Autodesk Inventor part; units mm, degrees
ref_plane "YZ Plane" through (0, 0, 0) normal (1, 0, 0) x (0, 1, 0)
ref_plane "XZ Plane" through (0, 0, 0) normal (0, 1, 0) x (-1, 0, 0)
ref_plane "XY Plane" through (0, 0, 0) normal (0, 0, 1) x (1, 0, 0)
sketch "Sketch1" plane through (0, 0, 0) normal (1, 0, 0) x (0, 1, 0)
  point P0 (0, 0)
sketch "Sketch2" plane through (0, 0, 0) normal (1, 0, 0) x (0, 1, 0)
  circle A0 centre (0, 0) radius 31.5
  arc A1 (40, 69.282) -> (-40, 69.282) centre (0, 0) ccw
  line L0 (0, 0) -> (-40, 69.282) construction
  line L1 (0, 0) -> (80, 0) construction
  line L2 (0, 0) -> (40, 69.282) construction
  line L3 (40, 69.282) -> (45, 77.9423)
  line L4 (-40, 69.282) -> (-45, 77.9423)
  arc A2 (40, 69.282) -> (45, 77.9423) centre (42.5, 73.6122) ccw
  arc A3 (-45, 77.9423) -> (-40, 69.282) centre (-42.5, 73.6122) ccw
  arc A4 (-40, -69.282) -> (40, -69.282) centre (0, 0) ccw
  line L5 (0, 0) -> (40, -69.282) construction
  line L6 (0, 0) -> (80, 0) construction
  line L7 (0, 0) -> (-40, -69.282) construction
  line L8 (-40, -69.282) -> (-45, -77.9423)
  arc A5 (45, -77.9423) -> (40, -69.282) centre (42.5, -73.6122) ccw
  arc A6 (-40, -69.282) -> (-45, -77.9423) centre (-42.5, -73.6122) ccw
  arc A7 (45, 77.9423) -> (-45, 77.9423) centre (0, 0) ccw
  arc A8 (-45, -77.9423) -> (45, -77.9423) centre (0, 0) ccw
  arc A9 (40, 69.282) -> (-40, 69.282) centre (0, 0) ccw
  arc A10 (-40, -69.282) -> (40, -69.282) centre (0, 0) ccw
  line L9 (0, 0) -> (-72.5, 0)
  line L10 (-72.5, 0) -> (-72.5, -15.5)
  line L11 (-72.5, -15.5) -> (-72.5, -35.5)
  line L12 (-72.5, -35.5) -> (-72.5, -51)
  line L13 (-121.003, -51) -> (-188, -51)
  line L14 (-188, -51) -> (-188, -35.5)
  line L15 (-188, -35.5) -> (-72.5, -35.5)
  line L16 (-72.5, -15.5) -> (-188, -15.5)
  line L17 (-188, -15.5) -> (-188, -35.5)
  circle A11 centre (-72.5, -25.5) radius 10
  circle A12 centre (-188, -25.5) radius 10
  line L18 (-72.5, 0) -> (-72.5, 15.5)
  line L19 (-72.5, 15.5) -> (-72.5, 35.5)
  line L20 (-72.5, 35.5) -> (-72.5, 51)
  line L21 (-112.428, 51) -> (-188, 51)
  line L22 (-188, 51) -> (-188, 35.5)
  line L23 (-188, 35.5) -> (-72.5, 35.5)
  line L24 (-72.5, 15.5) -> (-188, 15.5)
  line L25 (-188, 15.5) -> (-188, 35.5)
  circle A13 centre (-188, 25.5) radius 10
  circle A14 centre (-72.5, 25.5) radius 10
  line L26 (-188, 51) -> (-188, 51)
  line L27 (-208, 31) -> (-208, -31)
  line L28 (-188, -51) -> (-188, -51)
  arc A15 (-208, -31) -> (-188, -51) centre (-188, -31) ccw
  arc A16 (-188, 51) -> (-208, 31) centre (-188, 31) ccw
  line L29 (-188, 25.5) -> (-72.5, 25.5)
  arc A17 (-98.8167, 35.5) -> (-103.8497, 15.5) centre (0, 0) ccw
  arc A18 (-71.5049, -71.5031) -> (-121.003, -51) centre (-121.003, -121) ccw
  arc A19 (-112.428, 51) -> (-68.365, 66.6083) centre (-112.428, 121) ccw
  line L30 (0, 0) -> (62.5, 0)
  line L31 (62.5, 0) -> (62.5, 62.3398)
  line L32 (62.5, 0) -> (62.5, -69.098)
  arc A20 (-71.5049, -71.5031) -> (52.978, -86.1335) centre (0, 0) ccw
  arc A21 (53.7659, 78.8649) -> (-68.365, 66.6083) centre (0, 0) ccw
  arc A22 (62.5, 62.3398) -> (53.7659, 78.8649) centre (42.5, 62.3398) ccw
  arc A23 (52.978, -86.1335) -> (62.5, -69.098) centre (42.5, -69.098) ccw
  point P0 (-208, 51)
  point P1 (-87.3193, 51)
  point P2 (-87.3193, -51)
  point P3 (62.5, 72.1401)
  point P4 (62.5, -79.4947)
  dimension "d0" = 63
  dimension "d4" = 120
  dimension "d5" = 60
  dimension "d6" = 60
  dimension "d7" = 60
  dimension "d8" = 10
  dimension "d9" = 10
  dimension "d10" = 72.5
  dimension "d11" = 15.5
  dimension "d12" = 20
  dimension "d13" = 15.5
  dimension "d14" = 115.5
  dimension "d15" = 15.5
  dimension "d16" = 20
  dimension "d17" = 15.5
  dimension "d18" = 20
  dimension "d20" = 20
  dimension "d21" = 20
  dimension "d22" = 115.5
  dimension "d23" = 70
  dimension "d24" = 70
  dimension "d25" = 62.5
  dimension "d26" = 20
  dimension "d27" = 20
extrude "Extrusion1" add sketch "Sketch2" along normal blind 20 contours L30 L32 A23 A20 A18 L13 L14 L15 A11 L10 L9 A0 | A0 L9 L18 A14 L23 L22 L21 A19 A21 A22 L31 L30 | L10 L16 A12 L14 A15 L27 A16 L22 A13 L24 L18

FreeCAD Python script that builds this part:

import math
import FreeCAD as App
import Part
import Sketcher

doc = App.newDocument("Part")
body = doc.addObject("PartDesign::Body", "Body")

# Sketch on YZ plane
sketch1 = body.newObject("Sketcher::SketchObject", "Sketch")
sketch1.AttachmentSupport = (doc.getObject("YZ_Plane"), [""])
sketch1.MapMode = "FlatFace"
sketch1.addGeometry([
    Part.LineSegment(App.Vector(62.5, -69.1, 0), App.Vector(62.5, 62.3, 0)),  # 0
    Part.ArcOfCircle(Part.Circle(App.Vector(42.5, 62.3, 0), App.Vector(0, 0, 1), 20), math.radians(0), math.radians(56)),  # 1
    Part.ArcOfCircle(Part.Circle(App.Vector(0, 0, 0), App.Vector(0, 0, 1), 95.4), math.radians(56), math.radians(136)),  # 2
    Part.ArcOfCircle(Part.Circle(App.Vector(-112.4, 121, 0), App.Vector(0, 0, 1), 70), math.radians(-90), math.radians(-51)),  # 3
    Part.LineSegment(App.Vector(-112.4, 51, 0), App.Vector(-188, 51, 0)),  # 4
    Part.ArcOfCircle(Part.Circle(App.Vector(-188, 31, 0), App.Vector(0, 0, 1), 20), math.radians(90), math.radians(180)),  # 5
    Part.LineSegment(App.Vector(-208, 31, 0), App.Vector(-208, -31, 0)),  # 6
    Part.ArcOfCircle(Part.Circle(App.Vector(-188, -31, 0), App.Vector(0, 0, 1), 20), math.radians(180), math.radians(270)),  # 7
    Part.LineSegment(App.Vector(-188, -51, 0), App.Vector(-121, -51, 0)),  # 8
    Part.ArcOfCircle(Part.Circle(App.Vector(-121, -121, 0), App.Vector(0, 0, 1), 70), math.radians(45), math.radians(90)),  # 9
    Part.ArcOfCircle(Part.Circle(App.Vector(0, 0, 0), App.Vector(0, 0, 1), 101.1), math.radians(-135), math.radians(-58)),  # 10
    Part.ArcOfCircle(Part.Circle(App.Vector(42.5, -69.1, 0), App.Vector(0, 0, 1), 20), math.radians(-58), math.radians(0)),  # 11
    Part.LineSegment(App.Vector(-72.5, -35.5, 0), App.Vector(-188, -35.5, 0)),  # 12
    Part.ArcOfCircle(Part.Circle(App.Vector(-188, -25.5, 0), App.Vector(0, 0, 1), 10), math.radians(90), math.radians(270)),  # 13
    Part.LineSegment(App.Vector(-188, -15.5, 0), App.Vector(-72.5, -15.5, 0)),  # 14
    Part.ArcOfCircle(Part.Circle(App.Vector(-72.5, -25.5, 0), App.Vector(0, 0, 1), 10), math.radians(-90), math.radians(90)),  # 15
    Part.Circle(App.Vector(0, 0, 0), App.Vector(0, 0, 1), 31.5),  # 16
    Part.ArcOfCircle(Part.Circle(App.Vector(-42.5, -73.6, 0), App.Vector(0, 0, 1), 5), math.radians(60), math.radians(240)),  # 17
    Part.ArcOfCircle(Part.Circle(App.Vector(0, 0, 0), App.Vector(0, 0, 1), 80), math.radians(-120), math.radians(-60)),  # 18
    Part.ArcOfCircle(Part.Circle(App.Vector(42.5, -73.6, 0), App.Vector(0, 0, 1), 5), math.radians(-60), math.radians(120)),  # 19
    Part.ArcOfCircle(Part.Circle(App.Vector(0, 0, 0), App.Vector(0, 0, 1), 90), math.radians(-120), math.radians(-60)),  # 20
    Part.ArcOfCircle(Part.Circle(App.Vector(-42.5, 73.6, 0), App.Vector(0, 0, 1), 5), math.radians(120), math.radians(300)),  # 21
    Part.ArcOfCircle(Part.Circle(App.Vector(0, 0, 0), App.Vector(0, 0, 1), 90), math.radians(60), math.radians(120)),  # 22
    Part.ArcOfCircle(Part.Circle(App.Vector(42.5, 73.6, 0), App.Vector(0, 0, 1), 5), math.radians(-120), math.radians(60)),  # 23
    Part.ArcOfCircle(Part.Circle(App.Vector(0, 0, 0), App.Vector(0, 0, 1), 80), math.radians(60), math.radians(120)),  # 24
    Part.LineSegment(App.Vector(-72.5, 15.5, 0), App.Vector(-188, 15.5, 0)),  # 25
    Part.ArcOfCircle(Part.Circle(App.Vector(-188, 25.5, 0), App.Vector(0, 0, 1), 10), math.radians(90), math.radians(270)),  # 26
    Part.LineSegment(App.Vector(-188, 35.5, 0), App.Vector(-72.5, 35.5, 0)),  # 27
    Part.ArcOfCircle(Part.Circle(App.Vector(-72.5, 25.5, 0), App.Vector(0, 0, 1), 10), math.radians(-90), math.radians(90)),  # 28
], False)
sketch1.addConstraint([
    Sketcher.Constraint("Tangent", 0, 2, 1, 1),
    Sketcher.Constraint("Tangent", 1, 2, 2, 1),
    Sketcher.Constraint("Coincident", 2, 2, 3, 2),
    Sketcher.Constraint("Tangent", 3, 1, 4, 1),
    Sketcher.Constraint("Tangent", 4, 2, 5, 1),
    Sketcher.Constraint("Tangent", 5, 2, 6, 1),
    Sketcher.Constraint("Tangent", 6, 2, 7, 1),
    Sketcher.Constraint("Tangent", 7, 2, 8, 1),
    Sketcher.Constraint("Tangent", 8, 2, 9, 2),
    Sketcher.Constraint("Tangent", 9, 1, 10, 1),
    Sketcher.Constraint("Tangent", 10, 2, 11, 1),
    Sketcher.Constraint("Tangent", 11, 2, 0, 1),
    Sketcher.Constraint("Tangent", 12, 2, 13, 2),
    Sketcher.Constraint("Tangent", 13, 1, 14, 1),
    Sketcher.Constraint("Tangent", 14, 2, 15, 2),
    Sketcher.Constraint("Tangent", 15, 1, 12, 1),
    Sketcher.Constraint("Tangent", 17, 1, 18, 1),
    Sketcher.Constraint("Tangent", 18, 2, 19, 2),
    Sketcher.Constraint("Tangent", 19, 1, 20, 2),
    Sketcher.Constraint("Tangent", 20, 1, 17, 2),
    Sketcher.Constraint("Tangent", 21, 1, 22, 2),
    Sketcher.Constraint("Tangent", 22, 1, 23, 2),
    Sketcher.Constraint("Tangent", 23, 1, 24, 1),
    Sketcher.Constraint("Tangent", 24, 2, 21, 2),
    Sketcher.Constraint("Tangent", 25, 2, 26, 2),
    Sketcher.Constraint("Tangent", 26, 1, 27, 1),
    Sketcher.Constraint("Tangent", 27, 2, 28, 2),
    Sketcher.Constraint("Tangent", 28, 1, 25, 1),
    Sketcher.Constraint("Vertical", 0),
    Sketcher.Constraint("Horizontal", 4),
    Sketcher.Constraint("Vertical", 6),
    Sketcher.Constraint("Horizontal", 8),
    Sketcher.Constraint("Horizontal", 12),
    Sketcher.Constraint("Horizontal", 14),
    Sketcher.Constraint("Horizontal", 25),
    Sketcher.Constraint("Horizontal", 27),
    Sketcher.Constraint("Coincident", 2, 3, -1, 1),
    Sketcher.Constraint("Coincident", 10, 3, -1, 1),
    Sketcher.Constraint("Coincident", 16, 3, -1, 1),
    Sketcher.Constraint("Coincident", 18, 3, -1, 1),
    Sketcher.Constraint("Coincident", 20, 3, -1, 1),
    Sketcher.Constraint("Coincident", 22, 3, -1, 1),
    Sketcher.Constraint("Coincident", 24, 3, -1, 1),
    Sketcher.Constraint("Equal", 1, 5),
    Sketcher.Constraint("Equal", 5, 7),
    Sketcher.Constraint("Equal", 3, 9),
    Sketcher.Constraint("Equal", 7, 11),
    Sketcher.Constraint("Equal", 19, 21),
    Sketcher.Constraint("Equal", 20, 22),
    Sketcher.Constraint("Equal", 15, 26),
    Sketcher.Constraint("Symmetric", 13, 3, 26, 3, -1),
    Sketcher.Constraint("Horizontal", 17, 3, 19, 3),
    Sketcher.Constraint("Horizontal", 21, 3, 23, 3),
    Sketcher.Constraint("Vertical", 7, 3, 13, 3),
    Sketcher.Constraint("Vertical", 11, 3, 19, 3),
    Sketcher.Constraint("Vertical", 17, 3, 21, 3),
    Sketcher.Constraint("Vertical", 15, 3, 28, 3),
    Sketcher.Constraint("Diameter", 16, 63.0),
    Sketcher.Constraint("Radius", 1, 20.0),
    Sketcher.Constraint("Radius", 3, 70.0),
    Sketcher.Constraint("Radius", 13, 10.0),
    Sketcher.Constraint("Radius", 17, 5.0),
    Sketcher.Constraint("DistanceX", 12, 2, 12, 1, 115.5),
    Sketcher.Constraint("Radius", 18, 80.0),
    Sketcher.Constraint("DistanceX", 15, 3, -1, 1, 72.5),
    Sketcher.Constraint("DistanceX", -1, 1, 0, 2, 62.5),
    Sketcher.Constraint("DistanceY", 13, 1, -1, 1, 15.5),
    Sketcher.Constraint("DistanceY", 7, 2, 12, 2, 15.5),
    Sketcher.Constraint("DistanceY", 25, 2, 5, 3, 15.5),
    Sketcher.Constraint("Radius", 10, 101.122),
    Sketcher.Constraint("Radius", 2, 95.4486),
    Sketcher.Constraint("DistanceX", 4, 2, 4, 1, 75.572),
])
pad1 = body.newObject("PartDesign::Pad", "Pad")
pad1.Profile = sketch1
pad1.Length = 20

doc.recompute()
